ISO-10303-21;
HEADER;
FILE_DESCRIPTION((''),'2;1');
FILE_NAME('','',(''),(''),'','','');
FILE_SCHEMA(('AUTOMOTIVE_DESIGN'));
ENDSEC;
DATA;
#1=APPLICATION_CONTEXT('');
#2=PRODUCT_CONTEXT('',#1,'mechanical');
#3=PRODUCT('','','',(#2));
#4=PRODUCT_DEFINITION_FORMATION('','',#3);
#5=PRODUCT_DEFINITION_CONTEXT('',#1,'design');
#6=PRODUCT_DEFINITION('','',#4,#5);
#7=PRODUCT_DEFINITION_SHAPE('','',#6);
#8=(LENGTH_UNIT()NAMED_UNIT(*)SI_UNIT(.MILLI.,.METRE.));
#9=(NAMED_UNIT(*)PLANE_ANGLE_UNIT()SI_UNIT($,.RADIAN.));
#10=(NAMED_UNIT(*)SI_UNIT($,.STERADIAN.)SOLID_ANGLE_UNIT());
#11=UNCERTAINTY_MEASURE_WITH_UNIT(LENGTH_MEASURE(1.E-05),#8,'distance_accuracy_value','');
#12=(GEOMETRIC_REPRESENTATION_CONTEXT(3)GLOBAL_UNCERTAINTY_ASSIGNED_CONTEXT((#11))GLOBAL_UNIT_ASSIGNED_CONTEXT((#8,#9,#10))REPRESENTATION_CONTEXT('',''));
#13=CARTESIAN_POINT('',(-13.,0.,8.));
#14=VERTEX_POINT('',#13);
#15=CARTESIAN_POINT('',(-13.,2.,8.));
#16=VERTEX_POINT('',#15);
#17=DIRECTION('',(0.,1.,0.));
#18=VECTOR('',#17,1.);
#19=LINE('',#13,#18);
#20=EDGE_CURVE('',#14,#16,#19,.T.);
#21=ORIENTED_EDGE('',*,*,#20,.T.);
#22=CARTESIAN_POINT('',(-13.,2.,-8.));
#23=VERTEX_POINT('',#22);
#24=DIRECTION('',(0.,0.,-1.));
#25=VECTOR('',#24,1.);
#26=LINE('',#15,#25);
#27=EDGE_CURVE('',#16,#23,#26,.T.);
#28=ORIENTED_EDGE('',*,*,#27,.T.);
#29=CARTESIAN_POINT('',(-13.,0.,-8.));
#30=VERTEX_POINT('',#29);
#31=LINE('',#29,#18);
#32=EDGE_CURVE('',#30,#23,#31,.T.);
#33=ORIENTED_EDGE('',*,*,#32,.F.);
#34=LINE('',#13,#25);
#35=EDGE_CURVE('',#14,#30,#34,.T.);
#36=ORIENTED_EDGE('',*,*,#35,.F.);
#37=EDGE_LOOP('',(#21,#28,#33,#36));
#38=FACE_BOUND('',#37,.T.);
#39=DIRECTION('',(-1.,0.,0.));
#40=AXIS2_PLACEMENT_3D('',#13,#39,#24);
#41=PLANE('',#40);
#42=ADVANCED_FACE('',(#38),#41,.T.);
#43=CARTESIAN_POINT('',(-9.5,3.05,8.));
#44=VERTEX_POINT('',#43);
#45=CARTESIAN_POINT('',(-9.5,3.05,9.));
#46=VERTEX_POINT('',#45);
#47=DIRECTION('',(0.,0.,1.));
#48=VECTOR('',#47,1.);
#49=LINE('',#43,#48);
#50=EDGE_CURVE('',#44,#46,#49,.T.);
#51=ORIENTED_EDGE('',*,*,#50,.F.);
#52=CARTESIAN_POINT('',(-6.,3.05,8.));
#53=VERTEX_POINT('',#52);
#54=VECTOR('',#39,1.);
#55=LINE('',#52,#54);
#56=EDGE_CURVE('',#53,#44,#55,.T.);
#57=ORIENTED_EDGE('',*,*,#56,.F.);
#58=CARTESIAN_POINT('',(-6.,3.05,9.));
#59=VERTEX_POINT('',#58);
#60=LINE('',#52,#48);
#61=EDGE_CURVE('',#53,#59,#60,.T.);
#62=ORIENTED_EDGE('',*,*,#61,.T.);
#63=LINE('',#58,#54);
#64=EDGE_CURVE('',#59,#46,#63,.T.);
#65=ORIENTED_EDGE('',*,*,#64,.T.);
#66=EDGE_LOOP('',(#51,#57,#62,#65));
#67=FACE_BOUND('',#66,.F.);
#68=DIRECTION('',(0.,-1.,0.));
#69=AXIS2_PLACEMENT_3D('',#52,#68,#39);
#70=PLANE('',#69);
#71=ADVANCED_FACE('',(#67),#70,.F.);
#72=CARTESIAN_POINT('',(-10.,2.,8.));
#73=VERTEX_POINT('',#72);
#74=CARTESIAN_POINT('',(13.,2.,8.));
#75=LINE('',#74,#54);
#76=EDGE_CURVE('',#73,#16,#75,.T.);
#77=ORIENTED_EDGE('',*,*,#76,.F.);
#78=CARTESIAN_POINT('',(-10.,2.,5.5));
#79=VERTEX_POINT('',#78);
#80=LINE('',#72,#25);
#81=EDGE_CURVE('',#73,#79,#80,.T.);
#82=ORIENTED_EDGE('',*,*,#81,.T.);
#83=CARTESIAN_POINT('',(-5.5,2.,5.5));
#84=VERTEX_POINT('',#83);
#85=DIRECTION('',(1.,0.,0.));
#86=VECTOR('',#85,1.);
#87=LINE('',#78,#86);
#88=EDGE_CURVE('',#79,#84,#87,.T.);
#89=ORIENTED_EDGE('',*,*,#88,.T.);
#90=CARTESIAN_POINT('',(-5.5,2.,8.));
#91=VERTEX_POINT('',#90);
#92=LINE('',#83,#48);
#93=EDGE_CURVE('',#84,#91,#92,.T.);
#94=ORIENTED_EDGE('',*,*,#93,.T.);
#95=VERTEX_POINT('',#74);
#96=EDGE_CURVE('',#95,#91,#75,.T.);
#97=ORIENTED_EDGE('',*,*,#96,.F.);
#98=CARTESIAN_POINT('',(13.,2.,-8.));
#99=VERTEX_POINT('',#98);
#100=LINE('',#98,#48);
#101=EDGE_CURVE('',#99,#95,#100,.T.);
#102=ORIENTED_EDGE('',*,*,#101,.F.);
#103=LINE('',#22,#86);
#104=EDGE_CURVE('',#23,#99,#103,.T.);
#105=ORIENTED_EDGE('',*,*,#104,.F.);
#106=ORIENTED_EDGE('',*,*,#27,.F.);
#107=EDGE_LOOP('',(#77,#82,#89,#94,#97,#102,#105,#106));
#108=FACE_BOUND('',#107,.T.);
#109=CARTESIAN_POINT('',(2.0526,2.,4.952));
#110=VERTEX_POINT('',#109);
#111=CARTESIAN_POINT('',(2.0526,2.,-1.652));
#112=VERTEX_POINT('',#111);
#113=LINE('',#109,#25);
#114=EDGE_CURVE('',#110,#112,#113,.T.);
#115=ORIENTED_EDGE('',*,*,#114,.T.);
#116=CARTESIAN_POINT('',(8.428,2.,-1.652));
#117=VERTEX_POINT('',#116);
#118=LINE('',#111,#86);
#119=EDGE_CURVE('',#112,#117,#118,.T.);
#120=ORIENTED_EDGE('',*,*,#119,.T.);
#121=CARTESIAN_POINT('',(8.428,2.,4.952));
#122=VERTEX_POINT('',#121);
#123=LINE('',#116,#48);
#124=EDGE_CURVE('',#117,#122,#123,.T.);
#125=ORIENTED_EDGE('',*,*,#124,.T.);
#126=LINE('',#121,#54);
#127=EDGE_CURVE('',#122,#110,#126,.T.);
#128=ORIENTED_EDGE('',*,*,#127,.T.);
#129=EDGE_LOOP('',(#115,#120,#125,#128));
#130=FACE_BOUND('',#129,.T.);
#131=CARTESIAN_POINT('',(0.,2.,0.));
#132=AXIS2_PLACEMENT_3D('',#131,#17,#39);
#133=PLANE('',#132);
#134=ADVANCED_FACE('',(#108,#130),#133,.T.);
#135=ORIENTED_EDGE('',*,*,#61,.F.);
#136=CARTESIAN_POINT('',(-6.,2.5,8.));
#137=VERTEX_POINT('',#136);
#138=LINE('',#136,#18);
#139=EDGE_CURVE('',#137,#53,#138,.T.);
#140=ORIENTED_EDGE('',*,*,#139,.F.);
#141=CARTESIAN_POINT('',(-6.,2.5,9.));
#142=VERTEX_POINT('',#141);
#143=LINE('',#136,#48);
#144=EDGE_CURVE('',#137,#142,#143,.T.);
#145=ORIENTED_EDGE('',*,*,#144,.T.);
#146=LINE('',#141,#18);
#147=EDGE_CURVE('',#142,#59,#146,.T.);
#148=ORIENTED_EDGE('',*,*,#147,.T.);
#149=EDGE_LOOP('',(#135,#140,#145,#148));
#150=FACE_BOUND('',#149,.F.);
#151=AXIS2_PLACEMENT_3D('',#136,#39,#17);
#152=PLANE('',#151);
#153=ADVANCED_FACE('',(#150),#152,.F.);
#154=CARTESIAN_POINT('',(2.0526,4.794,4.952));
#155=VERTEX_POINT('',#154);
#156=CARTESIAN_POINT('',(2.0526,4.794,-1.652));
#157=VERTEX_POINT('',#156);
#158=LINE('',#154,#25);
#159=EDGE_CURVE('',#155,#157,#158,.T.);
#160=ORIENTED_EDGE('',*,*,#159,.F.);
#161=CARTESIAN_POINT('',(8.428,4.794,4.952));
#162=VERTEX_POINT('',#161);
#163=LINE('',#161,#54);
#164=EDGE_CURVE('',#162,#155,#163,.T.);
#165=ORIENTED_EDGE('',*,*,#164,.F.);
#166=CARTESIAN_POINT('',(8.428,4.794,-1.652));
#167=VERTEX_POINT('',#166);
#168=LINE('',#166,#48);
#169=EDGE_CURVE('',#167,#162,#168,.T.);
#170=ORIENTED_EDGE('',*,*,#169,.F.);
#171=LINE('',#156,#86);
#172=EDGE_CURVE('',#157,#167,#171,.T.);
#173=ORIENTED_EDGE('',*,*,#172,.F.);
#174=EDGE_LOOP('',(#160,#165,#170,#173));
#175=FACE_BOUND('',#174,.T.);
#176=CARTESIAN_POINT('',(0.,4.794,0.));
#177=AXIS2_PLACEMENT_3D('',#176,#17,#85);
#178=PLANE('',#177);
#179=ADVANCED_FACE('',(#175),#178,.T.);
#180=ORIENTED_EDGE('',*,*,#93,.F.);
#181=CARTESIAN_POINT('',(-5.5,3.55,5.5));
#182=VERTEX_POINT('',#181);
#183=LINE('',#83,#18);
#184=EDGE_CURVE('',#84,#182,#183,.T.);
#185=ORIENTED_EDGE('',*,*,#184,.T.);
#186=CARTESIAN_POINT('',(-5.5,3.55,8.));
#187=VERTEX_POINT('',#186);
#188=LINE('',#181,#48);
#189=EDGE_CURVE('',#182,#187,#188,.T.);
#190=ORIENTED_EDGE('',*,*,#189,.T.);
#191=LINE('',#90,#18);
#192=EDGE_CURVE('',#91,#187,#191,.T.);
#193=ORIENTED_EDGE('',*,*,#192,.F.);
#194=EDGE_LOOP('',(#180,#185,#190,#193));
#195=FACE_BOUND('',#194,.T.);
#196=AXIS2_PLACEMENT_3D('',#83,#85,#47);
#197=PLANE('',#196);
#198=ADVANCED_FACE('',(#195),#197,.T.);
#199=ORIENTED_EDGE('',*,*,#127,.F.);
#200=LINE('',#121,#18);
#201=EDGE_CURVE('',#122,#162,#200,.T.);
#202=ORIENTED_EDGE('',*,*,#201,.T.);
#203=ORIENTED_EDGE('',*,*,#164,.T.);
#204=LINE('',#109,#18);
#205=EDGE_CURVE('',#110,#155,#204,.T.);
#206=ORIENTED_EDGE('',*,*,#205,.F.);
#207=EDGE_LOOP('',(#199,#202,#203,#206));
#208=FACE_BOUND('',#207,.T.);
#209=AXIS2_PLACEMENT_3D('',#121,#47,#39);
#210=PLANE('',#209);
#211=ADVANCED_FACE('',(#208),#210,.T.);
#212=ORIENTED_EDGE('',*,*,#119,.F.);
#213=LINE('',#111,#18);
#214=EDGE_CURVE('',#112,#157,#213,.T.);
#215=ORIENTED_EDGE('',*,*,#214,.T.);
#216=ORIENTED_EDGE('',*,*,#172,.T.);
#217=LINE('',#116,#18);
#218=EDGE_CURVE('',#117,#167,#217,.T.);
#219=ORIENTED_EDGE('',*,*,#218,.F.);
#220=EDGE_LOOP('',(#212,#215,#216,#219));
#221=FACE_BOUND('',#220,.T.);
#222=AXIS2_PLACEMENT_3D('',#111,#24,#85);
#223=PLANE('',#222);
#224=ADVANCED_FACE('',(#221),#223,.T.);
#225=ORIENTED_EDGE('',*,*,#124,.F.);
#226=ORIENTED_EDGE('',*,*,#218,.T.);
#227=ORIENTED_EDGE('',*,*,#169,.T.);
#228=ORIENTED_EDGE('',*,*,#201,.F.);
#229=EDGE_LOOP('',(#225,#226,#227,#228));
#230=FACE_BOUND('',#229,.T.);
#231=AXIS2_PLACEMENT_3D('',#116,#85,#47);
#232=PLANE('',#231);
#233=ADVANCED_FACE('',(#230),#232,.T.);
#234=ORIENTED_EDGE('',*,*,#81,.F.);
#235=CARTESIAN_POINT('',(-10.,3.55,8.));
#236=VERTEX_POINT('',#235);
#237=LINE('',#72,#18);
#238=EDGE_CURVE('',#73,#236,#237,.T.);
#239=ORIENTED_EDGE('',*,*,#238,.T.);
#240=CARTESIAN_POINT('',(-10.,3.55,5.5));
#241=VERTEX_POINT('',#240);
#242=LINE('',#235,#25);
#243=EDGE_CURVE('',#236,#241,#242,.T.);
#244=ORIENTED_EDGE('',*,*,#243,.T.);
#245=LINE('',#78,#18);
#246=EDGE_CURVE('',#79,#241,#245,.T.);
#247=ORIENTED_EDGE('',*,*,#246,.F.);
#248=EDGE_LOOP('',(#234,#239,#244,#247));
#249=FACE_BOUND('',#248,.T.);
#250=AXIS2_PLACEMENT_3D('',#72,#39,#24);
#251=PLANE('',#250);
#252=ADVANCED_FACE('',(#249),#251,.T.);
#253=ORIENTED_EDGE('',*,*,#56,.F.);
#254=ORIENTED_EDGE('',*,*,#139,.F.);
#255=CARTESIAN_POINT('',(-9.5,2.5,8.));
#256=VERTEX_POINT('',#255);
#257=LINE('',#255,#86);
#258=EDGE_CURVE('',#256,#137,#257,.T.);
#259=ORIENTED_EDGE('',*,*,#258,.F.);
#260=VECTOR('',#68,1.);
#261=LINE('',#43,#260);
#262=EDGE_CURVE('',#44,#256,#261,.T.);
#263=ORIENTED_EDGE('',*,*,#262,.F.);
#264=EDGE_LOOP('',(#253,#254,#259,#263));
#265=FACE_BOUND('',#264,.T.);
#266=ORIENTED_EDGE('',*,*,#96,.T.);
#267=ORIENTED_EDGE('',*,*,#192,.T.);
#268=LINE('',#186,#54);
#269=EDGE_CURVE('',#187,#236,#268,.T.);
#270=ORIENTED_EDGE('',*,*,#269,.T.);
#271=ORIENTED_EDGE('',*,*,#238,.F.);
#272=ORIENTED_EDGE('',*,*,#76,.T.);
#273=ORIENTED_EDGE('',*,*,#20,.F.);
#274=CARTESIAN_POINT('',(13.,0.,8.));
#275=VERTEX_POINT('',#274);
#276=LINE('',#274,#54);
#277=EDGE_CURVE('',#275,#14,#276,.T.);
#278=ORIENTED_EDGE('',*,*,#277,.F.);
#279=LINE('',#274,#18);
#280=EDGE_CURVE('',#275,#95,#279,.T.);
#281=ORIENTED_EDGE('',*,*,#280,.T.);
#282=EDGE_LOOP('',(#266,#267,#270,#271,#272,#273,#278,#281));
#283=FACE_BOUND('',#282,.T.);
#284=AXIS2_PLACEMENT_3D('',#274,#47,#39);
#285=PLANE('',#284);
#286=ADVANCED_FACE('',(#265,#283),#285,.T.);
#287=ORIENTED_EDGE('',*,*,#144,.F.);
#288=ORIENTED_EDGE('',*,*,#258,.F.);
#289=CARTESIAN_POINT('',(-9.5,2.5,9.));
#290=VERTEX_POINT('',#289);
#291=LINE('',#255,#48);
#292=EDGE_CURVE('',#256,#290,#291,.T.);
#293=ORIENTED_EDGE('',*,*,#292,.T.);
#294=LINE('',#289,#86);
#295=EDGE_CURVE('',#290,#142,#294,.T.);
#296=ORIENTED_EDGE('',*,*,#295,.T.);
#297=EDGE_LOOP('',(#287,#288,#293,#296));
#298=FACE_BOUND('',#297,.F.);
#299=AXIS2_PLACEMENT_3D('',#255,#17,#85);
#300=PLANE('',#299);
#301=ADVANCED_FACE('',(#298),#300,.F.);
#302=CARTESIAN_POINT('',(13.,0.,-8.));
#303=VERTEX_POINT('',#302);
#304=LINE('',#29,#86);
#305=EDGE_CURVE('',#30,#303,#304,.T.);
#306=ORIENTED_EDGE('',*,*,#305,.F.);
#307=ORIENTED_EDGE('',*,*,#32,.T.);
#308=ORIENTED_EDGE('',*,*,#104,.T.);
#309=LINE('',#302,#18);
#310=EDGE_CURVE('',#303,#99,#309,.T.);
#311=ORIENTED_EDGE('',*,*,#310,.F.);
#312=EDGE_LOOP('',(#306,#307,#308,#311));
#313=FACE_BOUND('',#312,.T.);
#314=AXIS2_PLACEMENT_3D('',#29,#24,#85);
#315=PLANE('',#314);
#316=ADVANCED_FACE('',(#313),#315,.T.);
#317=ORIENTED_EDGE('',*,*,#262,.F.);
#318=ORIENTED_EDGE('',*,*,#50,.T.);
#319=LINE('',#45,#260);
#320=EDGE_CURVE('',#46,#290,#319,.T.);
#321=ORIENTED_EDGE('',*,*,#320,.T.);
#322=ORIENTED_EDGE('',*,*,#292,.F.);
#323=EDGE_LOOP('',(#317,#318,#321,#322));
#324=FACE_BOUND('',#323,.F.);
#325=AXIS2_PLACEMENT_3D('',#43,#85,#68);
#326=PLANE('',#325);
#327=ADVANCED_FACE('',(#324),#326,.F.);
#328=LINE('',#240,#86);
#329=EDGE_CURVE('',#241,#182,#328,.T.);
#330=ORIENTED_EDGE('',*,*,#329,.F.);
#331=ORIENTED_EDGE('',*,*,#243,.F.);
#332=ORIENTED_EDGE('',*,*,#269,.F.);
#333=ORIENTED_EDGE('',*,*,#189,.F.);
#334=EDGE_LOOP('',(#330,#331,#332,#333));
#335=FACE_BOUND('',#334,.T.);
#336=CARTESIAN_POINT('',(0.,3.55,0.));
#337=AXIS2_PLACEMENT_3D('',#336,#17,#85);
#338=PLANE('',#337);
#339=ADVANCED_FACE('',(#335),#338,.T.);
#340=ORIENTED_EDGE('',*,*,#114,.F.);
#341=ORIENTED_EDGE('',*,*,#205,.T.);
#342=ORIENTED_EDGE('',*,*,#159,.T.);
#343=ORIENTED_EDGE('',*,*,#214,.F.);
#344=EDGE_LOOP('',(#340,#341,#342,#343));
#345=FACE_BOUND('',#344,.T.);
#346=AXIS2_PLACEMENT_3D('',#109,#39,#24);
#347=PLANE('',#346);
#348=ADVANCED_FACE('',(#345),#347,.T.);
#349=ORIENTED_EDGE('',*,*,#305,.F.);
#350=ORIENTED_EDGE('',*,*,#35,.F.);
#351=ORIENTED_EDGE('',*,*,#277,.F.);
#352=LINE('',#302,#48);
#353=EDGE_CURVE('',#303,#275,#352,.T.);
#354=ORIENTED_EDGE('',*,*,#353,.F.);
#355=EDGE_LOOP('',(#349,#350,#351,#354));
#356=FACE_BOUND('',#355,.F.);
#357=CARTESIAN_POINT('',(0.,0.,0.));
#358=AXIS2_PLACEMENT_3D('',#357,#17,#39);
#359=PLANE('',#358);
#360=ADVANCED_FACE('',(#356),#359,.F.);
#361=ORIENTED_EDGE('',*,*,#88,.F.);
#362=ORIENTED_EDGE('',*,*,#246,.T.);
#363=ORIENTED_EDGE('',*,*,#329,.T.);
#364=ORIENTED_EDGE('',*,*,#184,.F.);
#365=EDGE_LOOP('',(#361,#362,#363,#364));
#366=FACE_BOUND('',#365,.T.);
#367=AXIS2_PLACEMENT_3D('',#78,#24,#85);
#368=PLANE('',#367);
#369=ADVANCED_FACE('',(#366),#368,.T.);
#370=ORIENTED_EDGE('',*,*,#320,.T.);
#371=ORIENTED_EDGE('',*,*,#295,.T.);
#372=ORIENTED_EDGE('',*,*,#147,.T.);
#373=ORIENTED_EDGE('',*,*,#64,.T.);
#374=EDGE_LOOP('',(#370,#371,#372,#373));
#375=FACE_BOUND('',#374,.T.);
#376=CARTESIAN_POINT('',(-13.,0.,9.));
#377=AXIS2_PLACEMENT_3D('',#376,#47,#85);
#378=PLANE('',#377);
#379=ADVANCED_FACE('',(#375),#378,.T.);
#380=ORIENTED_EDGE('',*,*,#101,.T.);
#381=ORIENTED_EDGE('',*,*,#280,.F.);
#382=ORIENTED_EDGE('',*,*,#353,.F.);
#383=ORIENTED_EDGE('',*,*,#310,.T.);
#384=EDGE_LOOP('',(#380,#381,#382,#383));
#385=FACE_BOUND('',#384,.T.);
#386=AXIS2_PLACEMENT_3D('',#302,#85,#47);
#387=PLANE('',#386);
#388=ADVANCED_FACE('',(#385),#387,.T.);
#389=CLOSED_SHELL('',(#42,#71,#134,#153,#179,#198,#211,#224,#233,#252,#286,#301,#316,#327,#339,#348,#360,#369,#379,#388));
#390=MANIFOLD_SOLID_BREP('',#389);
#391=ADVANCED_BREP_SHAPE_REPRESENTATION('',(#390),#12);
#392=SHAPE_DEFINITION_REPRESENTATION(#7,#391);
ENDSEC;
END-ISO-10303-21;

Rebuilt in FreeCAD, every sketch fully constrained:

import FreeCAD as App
import Part
import Sketcher
from FreeCAD import Vector


def add_polygon(sketch, points):
    """Adds a closed chain of lines whose ends are joined by coincident constraints."""
    first, n = sketch.GeometryCount, len(points)
    for a, b in zip(points, points[1:] + points[:1]):
        sketch.addGeometry(Part.LineSegment(App.Vector(*a, 0), App.Vector(*b, 0)), False)
    for i in range(n):
        sketch.addConstraint(Sketcher.Constraint("Coincident", first + i, 2, first + (i + 1) % n, 1))

doc = App.newDocument("Part")
params = doc.addObject("Spreadsheet::Sheet", "Params")
for row, (alias, value) in enumerate([
    ("sketch1_width", "26 mm"),
    ("sketch1_height", "16 mm"),
    ("pad1_length", "2 mm"),
    ("sketch2_width", "4.5 mm"),
    ("sketch2_height", "2.5 mm"),
    ("pad2_length", "1.55 mm"),
    ("sketch3_width", "3.5 mm"),
    ("sketch3_height", "0.55 mm"),
    ("pad3_length", "1 mm"),
    ("pad4_length", "2.794 mm"),
], start=1):
    params.set(f"A{row}", alias)
    params.set(f"B{row}", "=" + value)
    params.setAlias(f"B{row}", alias)

body = doc.addObject("PartDesign::Body", "Body")

# Sketch on XZ plane
sketch1 = body.newObject("Sketcher::SketchObject", "Sketch")
sketch1.AttachmentSupport = (doc.getObject("XZ_Plane"), [""])
sketch1.MapMode = "FlatFace"
add_polygon(sketch1, [(-13, 8), (13, 8), (13, -8), (-13, -8)])  # lines 0-3
sketch1.addConstraint([
    Sketcher.Constraint("Horizontal", 0),
    Sketcher.Constraint("Vertical", 1),
    Sketcher.Constraint("Horizontal", 2),
    Sketcher.Constraint("Vertical", 3),
    Sketcher.Constraint("Symmetric", 0, 2, 2, 2, -1, 1),
    Sketcher.Constraint("DistanceX", 0, 1, 0, 2, 26.0),
    Sketcher.Constraint("DistanceY", 1, 2, 1, 1, 16.0),
])
sketch1.setExpression("Constraints[9]", "Params.sketch1_width")
sketch1.setExpression("Constraints[10]", "Params.sketch1_height")
pad1 = body.newObject("PartDesign::Pad", "Pad")
pad1.Profile = sketch1
pad1.setExpression("Length", "Params.pad1_length")
pad1.Reversed = True

# Sketch on XZ plane
sketch2 = body.newObject("Sketcher::SketchObject", "Sketch001")
sketch2.AttachmentSupport = (doc.getObject("XZ_Plane"), [""])
sketch2.MapMode = "FlatFace"
sketch2.AttachmentOffset = App.Placement(Vector(0, 0, -2), App.Rotation())
add_polygon(sketch2, [(-10, 5.5), (-10, 8), (-5.5, 8), (-5.5, 5.5)])  # lines 0-3
sketch2.addConstraint([
    Sketcher.Constraint("Vertical", 0),
    Sketcher.Constraint("Horizontal", 1),
    Sketcher.Constraint("Vertical", 2),
    Sketcher.Constraint("Horizontal", 3),
    Sketcher.Constraint("DistanceX", 1, 1, 1, 2, 4.5),
    Sketcher.Constraint("DistanceY", 0, 1, 0, 2, 2.5),
    Sketcher.Constraint("DistanceX", 0, 2, -1, 1, 10.0),
    Sketcher.Constraint("DistanceY", -1, 1, 0, 2, 8.0),
])
sketch2.setExpression("Constraints[8]", "Params.sketch2_width")
sketch2.setExpression("Constraints[9]", "Params.sketch2_height")
pad2 = body.newObject("PartDesign::Pad", "Pad001")
pad2.Profile = sketch2
pad2.setExpression("Length", "Params.pad2_length")
pad2.Reversed = True

# Sketch on XY plane
sketch3 = body.newObject("Sketcher::SketchObject", "Sketch002")
sketch3.AttachmentSupport = (doc.getObject("XY_Plane"), [""])
sketch3.MapMode = "FlatFace"
sketch3.AttachmentOffset = App.Placement(Vector(0, 0, 8), App.Rotation())
add_polygon(sketch3, [(-9.5, 3), (-9.5, 2.5), (-6, 2.5), (-6, 3)])  # lines 0-3
sketch3.addConstraint([
    Sketcher.Constraint("Vertical", 0),
    Sketcher.Constraint("Horizontal", 1),
    Sketcher.Constraint("Vertical", 2),
    Sketcher.Constraint("Horizontal", 3),
    Sketcher.Constraint("DistanceX", 1, 1, 1, 2, 3.5),
    Sketcher.Constraint("DistanceX", 1, 2, -1, 1, 6.0),
    Sketcher.Constraint("DistanceY", 0, 2, 0, 1, 0.55),
    Sketcher.Constraint("DistanceY", -1, 1, 0, 2, 2.5),
])
sketch3.setExpression("Constraints[8]", "Params.sketch3_width")
sketch3.setExpression("Constraints[10]", "Params.sketch3_height")
pad3 = body.newObject("PartDesign::Pad", "Pad002")
pad3.Profile = sketch3
pad3.setExpression("Length", "Params.pad3_length")

# Sketch on XZ plane
sketch4 = body.newObject("Sketcher::SketchObject", "Sketch003")
sketch4.AttachmentSupport = (doc.getObject("XZ_Plane"), [""])
sketch4.MapMode = "FlatFace"
sketch4.AttachmentOffset = App.Placement(Vector(0, 0, -2), App.Rotation())
add_polygon(sketch4, [(2, 5), (8, 5), (8, -2), (2, -2)])  # lines 0-3
sketch4.addConstraint([
    Sketcher.Constraint("Horizontal", 0),
    Sketcher.Constraint("Vertical", 1),
    Sketcher.Constraint("Horizontal", 2),
    Sketcher.Constraint("Vertical", 3),
    Sketcher.Constraint("DistanceY", 1, 2, 1, 1, 6.604),
    Sketcher.Constraint("DistanceX", 0, 1, 0, 2, 6.3754),
    Sketcher.Constraint("DistanceX", -1, 1, 0, 2, 8.428),
    Sketcher.Constraint("DistanceY", -1, 1, 0, 2, 4.952),
])
pad4 = body.newObject("PartDesign::Pad", "Pad003")
pad4.Profile = sketch4
pad4.setExpression("Length", "Params.pad4_length")
pad4.Reversed = True

doc.recompute()
